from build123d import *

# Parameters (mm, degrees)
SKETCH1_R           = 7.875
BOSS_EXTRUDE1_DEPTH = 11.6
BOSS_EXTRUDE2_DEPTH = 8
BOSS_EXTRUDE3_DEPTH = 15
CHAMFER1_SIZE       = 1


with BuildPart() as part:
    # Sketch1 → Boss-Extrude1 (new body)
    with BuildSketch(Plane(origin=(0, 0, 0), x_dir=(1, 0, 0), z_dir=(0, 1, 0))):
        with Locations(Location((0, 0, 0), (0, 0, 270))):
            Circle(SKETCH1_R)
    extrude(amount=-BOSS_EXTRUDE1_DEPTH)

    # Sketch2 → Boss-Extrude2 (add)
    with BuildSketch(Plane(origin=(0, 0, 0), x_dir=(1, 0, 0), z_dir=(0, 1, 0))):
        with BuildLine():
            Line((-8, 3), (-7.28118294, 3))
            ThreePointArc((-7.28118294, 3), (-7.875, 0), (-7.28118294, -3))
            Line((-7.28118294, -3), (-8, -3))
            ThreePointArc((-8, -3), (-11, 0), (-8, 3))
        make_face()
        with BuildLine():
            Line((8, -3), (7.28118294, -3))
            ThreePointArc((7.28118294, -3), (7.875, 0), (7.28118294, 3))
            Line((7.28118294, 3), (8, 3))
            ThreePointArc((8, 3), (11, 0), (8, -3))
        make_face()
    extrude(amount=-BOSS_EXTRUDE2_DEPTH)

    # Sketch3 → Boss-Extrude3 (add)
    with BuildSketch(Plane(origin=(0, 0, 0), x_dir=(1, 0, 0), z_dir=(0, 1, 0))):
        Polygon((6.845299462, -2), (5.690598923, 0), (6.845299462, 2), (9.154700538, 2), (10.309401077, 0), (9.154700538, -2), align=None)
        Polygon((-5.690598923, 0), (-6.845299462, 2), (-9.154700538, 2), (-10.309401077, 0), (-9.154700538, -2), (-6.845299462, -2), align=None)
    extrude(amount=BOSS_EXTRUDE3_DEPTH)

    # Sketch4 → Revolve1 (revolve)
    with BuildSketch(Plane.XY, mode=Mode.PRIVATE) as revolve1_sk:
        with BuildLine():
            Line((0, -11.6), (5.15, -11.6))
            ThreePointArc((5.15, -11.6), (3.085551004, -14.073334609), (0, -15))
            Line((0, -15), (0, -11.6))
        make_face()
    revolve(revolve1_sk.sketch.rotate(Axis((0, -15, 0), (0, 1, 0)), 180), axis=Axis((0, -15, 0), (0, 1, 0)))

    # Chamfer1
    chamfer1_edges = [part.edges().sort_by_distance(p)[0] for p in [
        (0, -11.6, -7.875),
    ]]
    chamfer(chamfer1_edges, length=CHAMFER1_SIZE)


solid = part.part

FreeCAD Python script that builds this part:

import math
import FreeCAD as App
import Part
import Sketcher
Q = App.Units.Quantity


def edges_at(feature, points):
    """Names of the edges that pass closest to the given points."""
    edges = feature.Shape.Edges
    near = lambda p: min(range(len(edges)), key=lambda i: edges[i].distToShape(Part.Vertex(*p))[0])
    return sorted({f"Edge{near(p) + 1}" for p in points})

doc = App.newDocument("Part")
body = doc.addObject("PartDesign::Body", "Body")

sketch1 = body.newObject("Sketcher::SketchObject", "Sketch")
sketch1.AttachmentSupport = (doc.getObject("XZ_Plane"), [""])
sketch1.MapMode = "FlatFace"
sketch1.addGeometry(Part.Circle(App.Vector(0, 0, 0), App.Vector(0, 0, 1), 8), False)
sketch1.addConstraint([
    Sketcher.Constraint("Coincident", 0, 3, -1, 1),
    Sketcher.Constraint("Diameter", 0, Q("15.75 mm")),
])
pad1 = body.newObject("PartDesign::Pad", "Pad")
pad1.Profile = sketch1
pad1.Length = 11.6

sketch2 = body.newObject("Sketcher::SketchObject", "Sketch001")
sketch2.AttachmentSupport = (doc.getObject("XZ_Plane"), [""])
sketch2.MapMode = "FlatFace"
sketch2.addGeometry([
    Part.LineSegment(App.Vector(-7.3, -3, 0), App.Vector(-8, -3, 0)),
    Part.ArcOfCircle(Part.Circle(App.Vector(-8, 0, 0), App.Vector(0, 0, 1), 3), math.radians(90), math.radians(270)),
    Part.LineSegment(App.Vector(-8, 3, 0), App.Vector(-7.3, 3, 0)),
    Part.ArcOfCircle(Part.Circle(App.Vector(0, 0, 0), App.Vector(0, 0, 1), 7.9), math.radians(158), math.radians(202)),
    Part.LineSegment(App.Vector(7.3, 3, 0), App.Vector(8, 3, 0)),
    Part.ArcOfCircle(Part.Circle(App.Vector(8, 0, 0), App.Vector(0, 0, 1), 3), math.radians(-90), math.radians(90)),
    Part.LineSegment(App.Vector(8, -3, 0), App.Vector(7.3, -3, 0)),
    Part.ArcOfCircle(Part.Circle(App.Vector(0, 0, 0), App.Vector(0, 0, 1), 7.9), math.radians(-22), math.radians(22)),
], False)
sketch2.addConstraint([
    Sketcher.Constraint("Tangent", 0, 2, 1, 2),
    Sketcher.Constraint("Tangent", 1, 1, 2, 1),
    Sketcher.Constraint("Coincident", 2, 2, 3, 1),
    Sketcher.Constraint("Coincident", 3, 2, 0, 1),
    Sketcher.Constraint("Tangent", 4, 2, 5, 2),
    Sketcher.Constraint("Tangent", 5, 1, 6, 1),
    Sketcher.Constraint("Coincident", 6, 2, 7, 1),
    Sketcher.Constraint("Coincident", 7, 2, 4, 1),
    Sketcher.Constraint("Horizontal", 0),
    Sketcher.Constraint("Horizontal", 2),
    Sketcher.Constraint("Horizontal", 4),
    Sketcher.Constraint("Horizontal", 6),
    Sketcher.Constraint("Coincident", 3, 3, -1, 1),
    Sketcher.Constraint("Coincident", 7, 3, -1, 1),
    Sketcher.Constraint("Equal", 1, 5),
    Sketcher.Constraint("Equal", 3, 7),
    Sketcher.Constraint("Symmetric", 1, 3, 5, 3, -1, 1),
    Sketcher.Constraint("PointOnObject", 1, 3, -1),
    Sketcher.Constraint("Radius", 1, Q("3 mm")),
    Sketcher.Constraint("DistanceX", 1, 3, -1, 1, Q("8 mm")),
    Sketcher.Constraint("Radius", 3, Q("7.875 mm")),
])
pad2 = body.newObject("PartDesign::Pad", "Pad001")
pad2.Profile = sketch2
pad2.Length = 8

sketch3 = body.newObject("Sketcher::SketchObject", "Sketch002")
sketch3.AttachmentSupport = (doc.getObject("XZ_Plane"), [""])
sketch3.MapMode = "FlatFace"
sketch3.addGeometry([
    Part.LineSegment(App.Vector(5.7, 0, 0), App.Vector(6.8, 2, 0)),
    Part.LineSegment(App.Vector(6.8, 2, 0), App.Vector(9.2, 2, 0)),
    Part.LineSegment(App.Vector(9.2, 2, 0), App.Vector(10.3, 0, 0)),
    Part.LineSegment(App.Vector(10.3, 0, 0), App.Vector(9.2, -2, 0)),
    Part.LineSegment(App.Vector(9.2, -2, 0), App.Vector(6.8, -2, 0)),
    Part.LineSegment(App.Vector(6.8, -2, 0), App.Vector(5.7, 0, 0)),
    Part.LineSegment(App.Vector(-5.7, 0, 0), App.Vector(-6.8, -2, 0)),
    Part.LineSegment(App.Vector(-6.8, -2, 0), App.Vector(-9.2, -2, 0)),
    Part.LineSegment(App.Vector(-9.2, -2, 0), App.Vector(-10.3, 0, 0)),
    Part.LineSegment(App.Vector(-10.3, 0, 0), App.Vector(-9.2, 2, 0)),
    Part.LineSegment(App.Vector(-9.2, 2, 0), App.Vector(-6.8, 2, 0)),
    Part.LineSegment(App.Vector(-6.8, 2, 0), App.Vector(-5.7, 0, 0)),
], False)
sketch3.addConstraint([
    Sketcher.Constraint("Coincident", 0, 2, 1, 1),
    Sketcher.Constraint("Coincident", 1, 2, 2, 1),
    Sketcher.Constraint("Coincident", 2, 2, 3, 1),
    Sketcher.Constraint("Coincident", 3, 2, 4, 1),
    Sketcher.Constraint("Coincident", 4, 2, 5, 1),
    Sketcher.Constraint("Coincident", 5, 2, 0, 1),
    Sketcher.Constraint("Coincident", 6, 2, 7, 1),
    Sketcher.Constraint("Coincident", 7, 2, 8, 1),
    Sketcher.Constraint("Coincident", 8, 2, 9, 1),
    Sketcher.Constraint("Coincident", 9, 2, 10, 1),
    Sketcher.Constraint("Coincident", 10, 2, 11, 1),
    Sketcher.Constraint("Coincident", 11, 2, 6, 1),
    Sketcher.Constraint("Horizontal", 1),
    Sketcher.Constraint("Horizontal", 4),
    Sketcher.Constraint("Horizontal", 7),
    Sketcher.Constraint("Horizontal", 10),
    Sketcher.Constraint("Symmetric", 0, 2, 6, 2, -1, 1),
    Sketcher.Constraint("Symmetric", 2, 2, 8, 2, -1, 1),
    Sketcher.Constraint("Symmetric", 3, 2, 9, 2, -1, 1),
    Sketcher.Constraint("Symmetric", 5, 2, 11, 2, -1, 1),
    Sketcher.Constraint("Symmetric", 4, 2, 6, 2, -2),
    Sketcher.Constraint("PointOnObject", 2, 2, -1),
    Sketcher.Constraint("PointOnObject", 5, 2, -1),
    Sketcher.Constraint("Parallel", 0, 3),
    Sketcher.Constraint("Parallel", 2, 5),
    Sketcher.Constraint("Parallel", 5, 8),
    Sketcher.Constraint("Parallel", 8, 11),
    Sketcher.Constraint("Angle", 0, Q("60 deg")),
    Sketcher.Constraint("DistanceY", -1, 1, 0, 2, Q("2 mm")),
    Sketcher.Constraint("DistanceX", 6, 2, 3, 2, Q("16 mm")),
    Sketcher.Constraint("DistanceX", 1, 1, 1, 2, Q("2.309401 mm")),
])
pad3 = body.newObject("PartDesign::Pad", "Pad002")
pad3.Profile = sketch3
pad3.Length = 15
pad3.Reversed = True

sketch4 = body.newObject("Sketcher::SketchObject", "Sketch003")
sketch4.AttachmentSupport = (doc.getObject("XY_Plane"), [""])
sketch4.MapMode = "FlatFace"
sketch4.addGeometry([
    Part.LineSegment(App.Vector(5.2, -11.6, 0), App.Vector(0, -11.6, 0)),
    Part.LineSegment(App.Vector(0, -11.6, 0), App.Vector(0, -15, 0)),
    Part.ArcOfCircle(Part.Circle(App.Vector(0, -9.4, 0), App.Vector(0, 0, 1), 5.6), math.radians(-90), math.radians(-23)),
], False)
sketch4.addConstraint([
    Sketcher.Constraint("Coincident", 0, 2, 1, 1),
    Sketcher.Constraint("Coincident", 1, 2, 2, 1),
    Sketcher.Constraint("Coincident", 2, 2, 0, 1),
    Sketcher.Constraint("Horizontal", 0),
    Sketcher.Constraint("Vertical", 1),
    Sketcher.Constraint("PointOnObject", 2, 3, -2),
    Sketcher.Constraint("PointOnObject", 0, 2, -2),
    Sketcher.Constraint("DistanceY", 1, 2, 1, 1, Q("3.4 mm")),
    Sketcher.Constraint("DistanceY", 1, 2, -1, 1, Q("15 mm")),
    Sketcher.Constraint("DistanceX", 0, 2, 0, 1, Q("5.15 mm")),
])
revolution = body.newObject("PartDesign::Revolution", "Revolution")
revolution.Profile = sketch4
revolution.ReferenceAxis = (sketch4, ["V_Axis"])
revolution.Angle = 360
doc.recompute()

chamfer = body.newObject("PartDesign::Chamfer", "Chamfer")
chamfer.Base = (revolution, edges_at(revolution, [(0, -11.6, -7.875)]))
chamfer.Size = 1

doc.recompute()
